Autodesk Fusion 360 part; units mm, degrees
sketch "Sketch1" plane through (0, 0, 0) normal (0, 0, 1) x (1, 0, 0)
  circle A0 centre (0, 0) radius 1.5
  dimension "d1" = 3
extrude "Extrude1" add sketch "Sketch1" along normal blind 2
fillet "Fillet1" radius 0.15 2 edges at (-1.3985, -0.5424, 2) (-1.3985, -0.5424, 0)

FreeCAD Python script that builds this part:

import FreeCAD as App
import Part
import Sketcher
from FreeCAD import Vector


def edges_at(feature, points):
    """Names of the edges that pass closest to the given points."""
    edges = feature.Shape.Edges
    near = lambda p: min(range(len(edges)), key=lambda i: edges[i].distToShape(Part.Vertex(*p))[0])
    return sorted({f"Edge{near(p) + 1}" for p in points})

doc = App.newDocument("Part")
body = doc.addObject("PartDesign::Body", "Body")

# Sketch on XY plane
sketch1 = body.newObject("Sketcher::SketchObject", "Sketch")
sketch1.AttachmentSupport = (doc.getObject("XY_Plane"), [""])
sketch1.MapMode = "FlatFace"
sketch1.addGeometry(Part.Circle(Vector(0, 0, 0), Vector(0, 0, 1), 1.5), False)
sketch1.addConstraint([
    Sketcher.Constraint("Coincident", 0, 3, -1, 1),
    Sketcher.Constraint("Diameter", 0, 3.0),
])
pad1 = body.newObject("PartDesign::Pad", "Pad")
pad1.Profile = sketch1
pad1.Length = 2
doc.recompute()

fillet = body.newObject("PartDesign::Fillet", "Fillet")
fillet.Base = (pad1, edges_at(pad1, [(-1.399, -0.542, 2), (-1.399, -0.542, 0)]))
fillet.Radius = 0.15

doc.recompute()
